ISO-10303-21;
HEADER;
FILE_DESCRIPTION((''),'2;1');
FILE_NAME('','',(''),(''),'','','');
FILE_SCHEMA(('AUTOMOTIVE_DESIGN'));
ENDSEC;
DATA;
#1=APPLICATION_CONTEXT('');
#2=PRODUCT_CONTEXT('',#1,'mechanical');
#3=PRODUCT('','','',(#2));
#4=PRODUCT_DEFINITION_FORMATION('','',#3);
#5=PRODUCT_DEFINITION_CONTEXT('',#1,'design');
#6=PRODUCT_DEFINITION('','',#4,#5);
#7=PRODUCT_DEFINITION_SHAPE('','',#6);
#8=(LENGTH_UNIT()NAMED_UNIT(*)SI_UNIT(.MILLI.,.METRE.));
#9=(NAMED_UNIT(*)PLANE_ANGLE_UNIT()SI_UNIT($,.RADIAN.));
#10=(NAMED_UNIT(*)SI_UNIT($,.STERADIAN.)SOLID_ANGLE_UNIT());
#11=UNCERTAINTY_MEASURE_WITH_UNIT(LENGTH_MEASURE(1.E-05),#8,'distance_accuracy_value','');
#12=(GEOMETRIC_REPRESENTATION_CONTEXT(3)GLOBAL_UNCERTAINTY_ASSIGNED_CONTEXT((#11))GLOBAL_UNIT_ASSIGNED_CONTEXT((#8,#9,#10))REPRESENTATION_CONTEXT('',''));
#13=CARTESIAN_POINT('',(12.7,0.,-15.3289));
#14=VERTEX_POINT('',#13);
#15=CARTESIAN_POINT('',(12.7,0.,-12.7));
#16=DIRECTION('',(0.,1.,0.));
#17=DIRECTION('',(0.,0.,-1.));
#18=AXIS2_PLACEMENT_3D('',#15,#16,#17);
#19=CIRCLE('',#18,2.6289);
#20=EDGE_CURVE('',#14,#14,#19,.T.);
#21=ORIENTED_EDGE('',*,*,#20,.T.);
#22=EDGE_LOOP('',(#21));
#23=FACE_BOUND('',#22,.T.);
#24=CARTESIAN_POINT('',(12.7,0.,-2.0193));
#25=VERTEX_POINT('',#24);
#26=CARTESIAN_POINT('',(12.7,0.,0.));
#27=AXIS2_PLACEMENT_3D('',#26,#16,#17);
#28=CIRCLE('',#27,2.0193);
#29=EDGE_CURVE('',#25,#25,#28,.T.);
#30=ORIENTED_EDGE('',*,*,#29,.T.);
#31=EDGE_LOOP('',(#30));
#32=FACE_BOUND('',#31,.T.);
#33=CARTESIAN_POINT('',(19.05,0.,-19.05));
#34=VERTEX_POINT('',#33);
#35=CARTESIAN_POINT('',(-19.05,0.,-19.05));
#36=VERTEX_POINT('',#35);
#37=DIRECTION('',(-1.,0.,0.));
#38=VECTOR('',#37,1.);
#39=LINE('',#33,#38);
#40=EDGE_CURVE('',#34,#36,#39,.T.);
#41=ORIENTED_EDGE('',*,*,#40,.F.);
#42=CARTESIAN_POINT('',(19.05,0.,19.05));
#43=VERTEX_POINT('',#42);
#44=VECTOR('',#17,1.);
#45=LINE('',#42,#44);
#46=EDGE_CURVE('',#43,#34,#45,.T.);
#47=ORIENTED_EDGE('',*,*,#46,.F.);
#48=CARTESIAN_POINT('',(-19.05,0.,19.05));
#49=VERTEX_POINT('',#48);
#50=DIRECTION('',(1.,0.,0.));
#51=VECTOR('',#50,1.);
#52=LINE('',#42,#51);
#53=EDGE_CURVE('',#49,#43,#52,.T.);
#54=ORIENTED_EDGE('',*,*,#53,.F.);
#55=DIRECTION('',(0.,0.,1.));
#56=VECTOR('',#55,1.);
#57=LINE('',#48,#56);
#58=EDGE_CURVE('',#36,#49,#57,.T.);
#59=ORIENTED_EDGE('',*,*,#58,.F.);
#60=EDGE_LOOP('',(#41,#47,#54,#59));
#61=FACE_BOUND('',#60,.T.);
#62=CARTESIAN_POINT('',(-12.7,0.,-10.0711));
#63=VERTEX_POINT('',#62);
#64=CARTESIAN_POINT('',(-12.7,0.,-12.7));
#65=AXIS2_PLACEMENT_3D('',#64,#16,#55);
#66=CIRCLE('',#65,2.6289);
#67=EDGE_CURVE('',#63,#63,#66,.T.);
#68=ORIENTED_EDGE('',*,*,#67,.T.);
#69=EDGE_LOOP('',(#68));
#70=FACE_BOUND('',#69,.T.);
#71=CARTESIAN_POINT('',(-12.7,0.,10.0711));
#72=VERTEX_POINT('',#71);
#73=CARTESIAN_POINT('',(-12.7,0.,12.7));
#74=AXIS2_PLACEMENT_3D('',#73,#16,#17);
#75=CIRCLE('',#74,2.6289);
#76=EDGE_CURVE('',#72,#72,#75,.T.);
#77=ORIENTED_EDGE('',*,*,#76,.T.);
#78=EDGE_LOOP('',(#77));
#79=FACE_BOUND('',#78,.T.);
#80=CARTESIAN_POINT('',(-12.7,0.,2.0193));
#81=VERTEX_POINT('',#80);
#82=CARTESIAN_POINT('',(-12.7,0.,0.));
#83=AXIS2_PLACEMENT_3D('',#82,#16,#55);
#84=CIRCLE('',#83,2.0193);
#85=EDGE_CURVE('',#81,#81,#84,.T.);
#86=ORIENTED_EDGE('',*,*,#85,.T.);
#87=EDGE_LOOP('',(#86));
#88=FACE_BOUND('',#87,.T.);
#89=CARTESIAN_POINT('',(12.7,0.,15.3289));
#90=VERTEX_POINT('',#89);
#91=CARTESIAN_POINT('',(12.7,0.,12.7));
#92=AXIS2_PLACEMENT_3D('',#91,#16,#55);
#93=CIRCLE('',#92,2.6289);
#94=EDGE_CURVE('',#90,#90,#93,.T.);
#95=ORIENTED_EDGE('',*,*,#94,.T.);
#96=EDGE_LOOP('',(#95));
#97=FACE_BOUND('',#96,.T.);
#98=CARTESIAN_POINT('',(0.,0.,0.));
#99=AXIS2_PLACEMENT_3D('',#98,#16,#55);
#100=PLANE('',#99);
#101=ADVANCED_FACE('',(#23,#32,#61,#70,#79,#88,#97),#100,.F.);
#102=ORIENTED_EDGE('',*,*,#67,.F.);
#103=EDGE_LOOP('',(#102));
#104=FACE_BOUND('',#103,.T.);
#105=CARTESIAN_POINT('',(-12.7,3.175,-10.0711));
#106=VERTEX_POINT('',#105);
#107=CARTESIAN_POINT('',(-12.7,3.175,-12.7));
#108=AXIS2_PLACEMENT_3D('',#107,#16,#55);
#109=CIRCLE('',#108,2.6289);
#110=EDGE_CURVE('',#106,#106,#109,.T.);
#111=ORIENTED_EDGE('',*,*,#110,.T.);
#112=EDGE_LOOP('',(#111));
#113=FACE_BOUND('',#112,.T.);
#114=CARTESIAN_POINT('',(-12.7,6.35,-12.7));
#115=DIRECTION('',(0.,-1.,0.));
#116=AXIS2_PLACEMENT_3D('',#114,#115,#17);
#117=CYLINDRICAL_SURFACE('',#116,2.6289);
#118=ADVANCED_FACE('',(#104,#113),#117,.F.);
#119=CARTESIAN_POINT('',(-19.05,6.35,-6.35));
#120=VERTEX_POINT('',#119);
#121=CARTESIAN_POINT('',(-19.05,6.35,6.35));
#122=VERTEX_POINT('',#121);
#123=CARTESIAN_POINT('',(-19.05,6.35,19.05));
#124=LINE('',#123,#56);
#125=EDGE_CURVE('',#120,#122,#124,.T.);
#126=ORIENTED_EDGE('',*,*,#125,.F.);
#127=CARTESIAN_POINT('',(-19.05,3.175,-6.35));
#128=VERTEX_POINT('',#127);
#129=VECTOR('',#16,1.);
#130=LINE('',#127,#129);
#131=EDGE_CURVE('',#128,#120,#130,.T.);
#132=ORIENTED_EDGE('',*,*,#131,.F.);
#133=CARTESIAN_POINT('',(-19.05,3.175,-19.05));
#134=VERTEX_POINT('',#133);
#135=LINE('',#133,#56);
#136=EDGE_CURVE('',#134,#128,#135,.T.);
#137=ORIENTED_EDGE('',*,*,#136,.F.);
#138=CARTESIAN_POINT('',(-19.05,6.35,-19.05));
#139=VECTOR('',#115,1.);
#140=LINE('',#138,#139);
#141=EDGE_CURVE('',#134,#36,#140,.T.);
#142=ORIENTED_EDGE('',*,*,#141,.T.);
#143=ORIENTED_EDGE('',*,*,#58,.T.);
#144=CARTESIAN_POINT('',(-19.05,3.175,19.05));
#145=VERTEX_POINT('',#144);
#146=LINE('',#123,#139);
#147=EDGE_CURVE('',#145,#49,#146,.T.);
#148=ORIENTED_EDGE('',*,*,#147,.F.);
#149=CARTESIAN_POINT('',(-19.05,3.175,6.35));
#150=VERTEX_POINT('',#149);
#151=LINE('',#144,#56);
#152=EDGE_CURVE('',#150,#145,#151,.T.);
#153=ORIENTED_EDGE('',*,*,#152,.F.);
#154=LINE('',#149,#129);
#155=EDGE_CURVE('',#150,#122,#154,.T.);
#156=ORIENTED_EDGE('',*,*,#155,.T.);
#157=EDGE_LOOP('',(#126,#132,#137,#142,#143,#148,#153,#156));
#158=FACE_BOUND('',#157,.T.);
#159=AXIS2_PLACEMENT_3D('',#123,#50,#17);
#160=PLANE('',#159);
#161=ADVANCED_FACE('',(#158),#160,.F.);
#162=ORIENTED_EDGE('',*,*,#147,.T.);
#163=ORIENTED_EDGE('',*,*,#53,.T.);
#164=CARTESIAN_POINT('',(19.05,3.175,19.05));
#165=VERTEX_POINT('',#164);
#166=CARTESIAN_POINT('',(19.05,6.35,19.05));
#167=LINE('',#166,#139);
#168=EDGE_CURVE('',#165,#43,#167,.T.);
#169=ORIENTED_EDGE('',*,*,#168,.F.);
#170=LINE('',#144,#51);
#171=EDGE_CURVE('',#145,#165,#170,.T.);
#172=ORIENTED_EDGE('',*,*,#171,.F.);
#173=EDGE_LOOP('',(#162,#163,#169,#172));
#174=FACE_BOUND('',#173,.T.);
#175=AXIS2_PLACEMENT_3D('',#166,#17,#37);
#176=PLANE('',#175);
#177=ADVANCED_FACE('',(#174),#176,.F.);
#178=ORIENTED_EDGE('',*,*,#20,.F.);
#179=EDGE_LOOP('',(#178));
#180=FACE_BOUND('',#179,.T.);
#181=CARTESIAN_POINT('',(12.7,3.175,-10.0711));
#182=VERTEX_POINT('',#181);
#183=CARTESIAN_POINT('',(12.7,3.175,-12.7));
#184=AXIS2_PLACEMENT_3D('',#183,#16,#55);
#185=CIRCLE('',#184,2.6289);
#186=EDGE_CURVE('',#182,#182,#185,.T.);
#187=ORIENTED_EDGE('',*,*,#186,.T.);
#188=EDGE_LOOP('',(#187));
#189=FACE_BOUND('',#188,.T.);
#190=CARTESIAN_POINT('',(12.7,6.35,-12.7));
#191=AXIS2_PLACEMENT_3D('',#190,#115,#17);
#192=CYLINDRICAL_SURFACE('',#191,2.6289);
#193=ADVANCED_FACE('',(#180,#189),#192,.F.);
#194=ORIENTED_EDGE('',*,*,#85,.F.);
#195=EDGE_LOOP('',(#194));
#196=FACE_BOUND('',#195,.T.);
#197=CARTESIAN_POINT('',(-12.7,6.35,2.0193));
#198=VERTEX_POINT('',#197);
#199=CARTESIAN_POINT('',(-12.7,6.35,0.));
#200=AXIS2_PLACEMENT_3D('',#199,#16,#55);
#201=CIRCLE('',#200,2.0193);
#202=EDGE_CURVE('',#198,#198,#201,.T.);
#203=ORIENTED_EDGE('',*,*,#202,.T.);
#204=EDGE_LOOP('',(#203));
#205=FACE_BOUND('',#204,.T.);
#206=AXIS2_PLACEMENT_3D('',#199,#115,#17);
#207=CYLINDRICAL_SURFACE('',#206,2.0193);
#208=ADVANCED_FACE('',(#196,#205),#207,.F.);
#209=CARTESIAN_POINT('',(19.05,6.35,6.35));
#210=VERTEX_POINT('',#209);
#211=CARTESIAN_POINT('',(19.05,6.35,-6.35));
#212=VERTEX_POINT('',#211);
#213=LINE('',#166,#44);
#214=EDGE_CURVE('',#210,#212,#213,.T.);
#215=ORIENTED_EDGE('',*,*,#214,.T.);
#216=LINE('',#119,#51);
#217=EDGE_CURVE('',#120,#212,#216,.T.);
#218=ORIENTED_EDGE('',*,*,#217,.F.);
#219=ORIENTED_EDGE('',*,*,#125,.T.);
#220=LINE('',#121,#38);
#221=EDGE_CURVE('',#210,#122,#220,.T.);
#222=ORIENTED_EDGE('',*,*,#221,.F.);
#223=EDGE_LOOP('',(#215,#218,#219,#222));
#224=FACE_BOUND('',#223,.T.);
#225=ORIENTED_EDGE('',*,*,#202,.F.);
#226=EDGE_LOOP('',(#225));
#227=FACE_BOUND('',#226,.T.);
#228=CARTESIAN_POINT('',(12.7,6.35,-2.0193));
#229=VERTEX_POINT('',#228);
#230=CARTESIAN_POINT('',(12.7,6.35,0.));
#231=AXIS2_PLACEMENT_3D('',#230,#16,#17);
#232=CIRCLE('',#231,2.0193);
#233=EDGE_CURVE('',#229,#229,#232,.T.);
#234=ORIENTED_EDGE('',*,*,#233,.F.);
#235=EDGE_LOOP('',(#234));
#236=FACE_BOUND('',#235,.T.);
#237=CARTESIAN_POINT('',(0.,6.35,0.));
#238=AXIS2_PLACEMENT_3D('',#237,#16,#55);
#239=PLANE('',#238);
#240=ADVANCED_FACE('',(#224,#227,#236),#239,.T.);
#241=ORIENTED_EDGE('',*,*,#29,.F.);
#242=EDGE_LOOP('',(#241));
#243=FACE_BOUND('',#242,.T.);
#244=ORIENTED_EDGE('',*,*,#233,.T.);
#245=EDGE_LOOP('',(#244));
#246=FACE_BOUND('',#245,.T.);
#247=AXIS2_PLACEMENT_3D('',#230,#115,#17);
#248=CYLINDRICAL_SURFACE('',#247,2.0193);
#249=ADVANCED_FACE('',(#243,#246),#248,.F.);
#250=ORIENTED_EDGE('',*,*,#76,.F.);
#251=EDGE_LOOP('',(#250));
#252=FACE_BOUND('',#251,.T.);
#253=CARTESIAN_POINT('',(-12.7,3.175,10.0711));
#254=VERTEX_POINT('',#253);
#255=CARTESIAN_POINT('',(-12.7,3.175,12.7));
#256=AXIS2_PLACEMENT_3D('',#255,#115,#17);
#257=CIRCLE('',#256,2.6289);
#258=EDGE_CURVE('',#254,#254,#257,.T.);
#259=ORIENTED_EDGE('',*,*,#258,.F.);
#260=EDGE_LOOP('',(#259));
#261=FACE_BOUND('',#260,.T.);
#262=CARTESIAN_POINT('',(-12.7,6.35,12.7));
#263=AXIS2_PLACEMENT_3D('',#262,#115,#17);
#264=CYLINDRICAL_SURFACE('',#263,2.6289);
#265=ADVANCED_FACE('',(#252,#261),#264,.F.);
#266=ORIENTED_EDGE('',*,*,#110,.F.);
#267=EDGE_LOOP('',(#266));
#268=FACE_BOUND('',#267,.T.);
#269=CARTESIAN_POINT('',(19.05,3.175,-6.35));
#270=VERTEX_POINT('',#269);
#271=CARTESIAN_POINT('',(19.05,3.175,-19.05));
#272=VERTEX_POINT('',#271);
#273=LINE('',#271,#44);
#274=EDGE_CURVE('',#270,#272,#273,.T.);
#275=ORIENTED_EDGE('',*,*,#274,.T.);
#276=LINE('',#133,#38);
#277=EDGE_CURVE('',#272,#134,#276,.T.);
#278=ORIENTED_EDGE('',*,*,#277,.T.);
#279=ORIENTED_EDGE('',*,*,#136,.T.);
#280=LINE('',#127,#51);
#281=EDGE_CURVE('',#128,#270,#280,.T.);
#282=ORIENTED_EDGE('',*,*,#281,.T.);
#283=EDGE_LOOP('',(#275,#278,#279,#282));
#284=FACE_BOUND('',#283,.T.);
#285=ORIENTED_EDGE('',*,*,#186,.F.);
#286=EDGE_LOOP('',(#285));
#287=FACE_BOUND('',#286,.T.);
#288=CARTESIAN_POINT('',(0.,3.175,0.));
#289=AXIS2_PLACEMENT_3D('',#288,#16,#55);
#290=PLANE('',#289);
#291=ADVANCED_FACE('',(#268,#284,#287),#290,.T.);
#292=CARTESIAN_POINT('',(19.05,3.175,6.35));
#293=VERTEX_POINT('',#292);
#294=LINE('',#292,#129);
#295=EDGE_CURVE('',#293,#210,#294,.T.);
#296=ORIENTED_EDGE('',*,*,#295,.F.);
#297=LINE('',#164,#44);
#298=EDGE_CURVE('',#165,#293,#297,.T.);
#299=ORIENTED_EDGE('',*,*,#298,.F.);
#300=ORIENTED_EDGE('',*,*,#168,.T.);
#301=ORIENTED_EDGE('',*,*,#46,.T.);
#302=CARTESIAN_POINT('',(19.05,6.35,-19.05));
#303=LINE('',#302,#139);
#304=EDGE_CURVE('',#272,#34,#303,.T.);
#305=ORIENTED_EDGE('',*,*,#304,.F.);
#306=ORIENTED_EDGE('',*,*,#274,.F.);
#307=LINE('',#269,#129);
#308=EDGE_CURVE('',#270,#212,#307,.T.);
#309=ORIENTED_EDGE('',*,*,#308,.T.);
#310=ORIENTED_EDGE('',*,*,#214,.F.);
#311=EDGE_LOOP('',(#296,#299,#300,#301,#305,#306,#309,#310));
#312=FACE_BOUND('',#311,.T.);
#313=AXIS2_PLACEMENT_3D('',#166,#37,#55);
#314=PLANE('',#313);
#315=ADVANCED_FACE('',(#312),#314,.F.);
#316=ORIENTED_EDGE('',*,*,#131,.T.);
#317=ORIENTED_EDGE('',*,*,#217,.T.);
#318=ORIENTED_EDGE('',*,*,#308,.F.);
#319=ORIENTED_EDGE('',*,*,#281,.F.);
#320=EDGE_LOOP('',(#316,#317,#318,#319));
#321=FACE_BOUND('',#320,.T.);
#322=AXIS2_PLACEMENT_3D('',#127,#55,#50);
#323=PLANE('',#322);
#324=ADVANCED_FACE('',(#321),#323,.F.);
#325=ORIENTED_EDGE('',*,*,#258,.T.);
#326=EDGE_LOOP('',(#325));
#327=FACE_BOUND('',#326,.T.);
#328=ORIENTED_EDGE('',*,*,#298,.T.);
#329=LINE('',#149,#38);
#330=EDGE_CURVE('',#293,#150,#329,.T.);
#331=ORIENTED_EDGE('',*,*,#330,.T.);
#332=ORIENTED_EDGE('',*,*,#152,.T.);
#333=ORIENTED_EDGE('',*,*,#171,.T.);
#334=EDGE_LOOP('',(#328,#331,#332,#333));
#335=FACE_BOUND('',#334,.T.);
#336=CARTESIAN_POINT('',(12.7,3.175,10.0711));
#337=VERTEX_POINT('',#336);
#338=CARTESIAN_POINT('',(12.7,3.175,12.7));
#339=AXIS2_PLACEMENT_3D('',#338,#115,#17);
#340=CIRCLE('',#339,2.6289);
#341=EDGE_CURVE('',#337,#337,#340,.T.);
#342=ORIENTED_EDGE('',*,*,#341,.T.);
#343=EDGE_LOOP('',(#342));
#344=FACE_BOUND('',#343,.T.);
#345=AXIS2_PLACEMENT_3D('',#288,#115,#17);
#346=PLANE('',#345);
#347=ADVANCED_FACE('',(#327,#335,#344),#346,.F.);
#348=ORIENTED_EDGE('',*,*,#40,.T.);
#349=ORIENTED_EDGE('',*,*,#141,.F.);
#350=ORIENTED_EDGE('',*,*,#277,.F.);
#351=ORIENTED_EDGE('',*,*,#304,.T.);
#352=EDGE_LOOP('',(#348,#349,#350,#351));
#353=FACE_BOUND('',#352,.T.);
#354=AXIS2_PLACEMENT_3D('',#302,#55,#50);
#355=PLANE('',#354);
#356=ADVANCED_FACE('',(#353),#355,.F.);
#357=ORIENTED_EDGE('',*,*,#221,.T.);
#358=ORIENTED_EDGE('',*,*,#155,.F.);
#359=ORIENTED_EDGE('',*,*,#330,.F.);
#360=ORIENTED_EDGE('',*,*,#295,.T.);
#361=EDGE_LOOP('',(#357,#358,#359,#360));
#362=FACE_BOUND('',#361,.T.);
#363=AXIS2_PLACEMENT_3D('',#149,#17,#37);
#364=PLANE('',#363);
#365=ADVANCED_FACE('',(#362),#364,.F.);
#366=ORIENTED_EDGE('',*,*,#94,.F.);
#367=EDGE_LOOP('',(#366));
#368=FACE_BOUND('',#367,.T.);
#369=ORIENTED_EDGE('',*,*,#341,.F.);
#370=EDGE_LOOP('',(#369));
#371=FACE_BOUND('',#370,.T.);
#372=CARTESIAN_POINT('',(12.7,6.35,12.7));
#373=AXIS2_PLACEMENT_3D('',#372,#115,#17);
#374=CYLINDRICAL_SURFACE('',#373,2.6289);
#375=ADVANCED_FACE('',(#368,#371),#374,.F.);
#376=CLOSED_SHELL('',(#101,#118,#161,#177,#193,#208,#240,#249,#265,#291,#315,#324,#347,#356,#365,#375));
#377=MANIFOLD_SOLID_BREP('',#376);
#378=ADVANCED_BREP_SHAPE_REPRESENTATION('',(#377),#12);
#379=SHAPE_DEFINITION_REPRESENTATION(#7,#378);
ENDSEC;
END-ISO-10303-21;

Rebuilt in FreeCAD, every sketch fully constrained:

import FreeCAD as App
import Part
import Sketcher
Q = App.Units.Quantity

doc = App.newDocument("Part")
body = doc.addObject("PartDesign::Body", "Body")

sketch1 = body.newObject("Sketcher::SketchObject", "Sketch")
sketch1.AttachmentSupport = (doc.getObject("XZ_Plane"), [""])
sketch1.MapMode = "FlatFace"
sketch1.addGeometry([
    Part.LineSegment(App.Vector(-19.05, -19.05, 0), App.Vector(-19.05, 19.05, 0)),
    Part.LineSegment(App.Vector(-19.05, 19.05, 0), App.Vector(19.05, 19.05, 0)),
    Part.LineSegment(App.Vector(19.05, 19.05, 0), App.Vector(19.05, -19.05, 0)),
    Part.LineSegment(App.Vector(19.05, -19.05, 0), App.Vector(-19.05, -19.05, 0)),
    Part.Circle(App.Vector(-12.7, 12.7, 0), App.Vector(0, 0, 1), 2.6289),
    Part.Circle(App.Vector(12.7, 12.7, 0), App.Vector(0, 0, 1), 2.6289),
    Part.Circle(App.Vector(-12.7, 0, 0), App.Vector(0, 0, 1), 2.0193),
    Part.Circle(App.Vector(-12.7, -12.7, 0), App.Vector(0, 0, 1), 2.6289),
    Part.Circle(App.Vector(12.7, 0, 0), App.Vector(0, 0, 1), 2.0193),
    Part.Circle(App.Vector(12.7, -12.7, 0), App.Vector(0, 0, 1), 2.6289),
], False)
sketch1.addConstraint([
    Sketcher.Constraint("Coincident", 0, 2, 1, 1),
    Sketcher.Constraint("Coincident", 1, 2, 2, 1),
    Sketcher.Constraint("Coincident", 2, 2, 3, 1),
    Sketcher.Constraint("Coincident", 3, 2, 0, 1),
    Sketcher.Constraint("Vertical", 0),
    Sketcher.Constraint("Horizontal", 1),
    Sketcher.Constraint("Vertical", 2),
    Sketcher.Constraint("Horizontal", 3),
    Sketcher.Constraint("Equal", 4, 5),
    Sketcher.Constraint("Equal", 5, 7),
    Sketcher.Constraint("Equal", 6, 8),
    Sketcher.Constraint("Equal", 7, 9),
    Sketcher.Constraint("Symmetric", 5, 3, 7, 3, -1, 1),
    Sketcher.Constraint("Symmetric", 6, 3, 8, 3, -1, 1),
    Sketcher.Constraint("Symmetric", 4, 3, 9, 3, -1, 1),
    Sketcher.Constraint("Symmetric", 0, 2, 2, 2, -1, 1),
    Sketcher.Constraint("Symmetric", 4, 3, 5, 3, -2),
    Sketcher.Constraint("PointOnObject", 6, 3, -1),
    Sketcher.Constraint("Vertical", 4, 3, 6, 3),
    Sketcher.Constraint("Equal", 3, 0),
    Sketcher.Constraint("Diameter", 4, Q("0.207 in")),
    Sketcher.Constraint("Diameter", 6, Q("0.159 in")),
    Sketcher.Constraint("DistanceX", 1, 1, 1, 2, Q("1.5 in")),
    Sketcher.Constraint("DistanceX", 4, 3, 5, 3, Q("1 in")),
    Sketcher.Constraint("DistanceY", 7, 3, 4, 3, Q("1 in")),
])
pad1 = body.newObject("PartDesign::Pad", "Pad")
pad1.Profile = sketch1
pad1.Length = Q("0.25 in")
pad1.Reversed = True

sketch2 = body.newObject("Sketcher::SketchObject", "Sketch001")
sketch2.AttachmentSupport = (doc.getObject("XZ_Plane"), [""])
sketch2.MapMode = "FlatFace"
sketch2.AttachmentOffset = App.Placement(App.Vector(0, 0, -0.25 * 25.4), App.Rotation())
sketch2.addGeometry([
    Part.LineSegment(App.Vector(-19.05, -19.05, 0), App.Vector(-19.05, -6.35, 0)),
    Part.LineSegment(App.Vector(-19.05, -6.35, 0), App.Vector(19.05, -6.35, 0)),
    Part.LineSegment(App.Vector(19.05, -6.35, 0), App.Vector(19.05, -19.05, 0)),
    Part.LineSegment(App.Vector(19.05, -19.05, 0), App.Vector(-19.05, -19.05, 0)),
    Part.LineSegment(App.Vector(-19.05, 6.35, 0), App.Vector(-19.05, 19.05, 0)),
    Part.LineSegment(App.Vector(-19.05, 19.05, 0), App.Vector(19.05, 19.05, 0)),
    Part.LineSegment(App.Vector(19.05, 19.05, 0), App.Vector(19.05, 6.35, 0)),
    Part.LineSegment(App.Vector(19.05, 6.35, 0), App.Vector(-19.05, 6.35, 0)),
], False)
sketch2.addConstraint([
    Sketcher.Constraint("Coincident", 0, 2, 1, 1),
    Sketcher.Constraint("Coincident", 1, 2, 2, 1),
    Sketcher.Constraint("Coincident", 2, 2, 3, 1),
    Sketcher.Constraint("Coincident", 3, 2, 0, 1),
    Sketcher.Constraint("Coincident", 4, 2, 5, 1),
    Sketcher.Constraint("Coincident", 5, 2, 6, 1),
    Sketcher.Constraint("Coincident", 6, 2, 7, 1),
    Sketcher.Constraint("Coincident", 7, 2, 4, 1),
    Sketcher.Constraint("Vertical", 0),
    Sketcher.Constraint("Horizontal", 1),
    Sketcher.Constraint("Vertical", 2),
    Sketcher.Constraint("Horizontal", 3),
    Sketcher.Constraint("Vertical", 4),
    Sketcher.Constraint("Horizontal", 5),
    Sketcher.Constraint("Vertical", 6),
    Sketcher.Constraint("Horizontal", 7),
    Sketcher.Constraint("Symmetric", 2, 2, 4, 2, -1, 1),
    Sketcher.Constraint("Symmetric", 0, 2, 6, 2, -1, 1),
    Sketcher.Constraint("Vertical", 3, 2, 4, 2),
    Sketcher.Constraint("DistanceX", 1, 1, 1, 2, Q("1.5 in")),
    Sketcher.Constraint("DistanceY", 0, 1, 0, 2, Q("0.5 in")),
    Sketcher.Constraint("DistanceY", 0, 2, 4, 2, Q("1 in")),
])
pocket1 = body.newObject("PartDesign::Pocket", "Pocket")
pocket1.Profile = sketch2
pocket1.Length = Q("0.125 in")
pocket1.Reversed = True

doc.recompute()
